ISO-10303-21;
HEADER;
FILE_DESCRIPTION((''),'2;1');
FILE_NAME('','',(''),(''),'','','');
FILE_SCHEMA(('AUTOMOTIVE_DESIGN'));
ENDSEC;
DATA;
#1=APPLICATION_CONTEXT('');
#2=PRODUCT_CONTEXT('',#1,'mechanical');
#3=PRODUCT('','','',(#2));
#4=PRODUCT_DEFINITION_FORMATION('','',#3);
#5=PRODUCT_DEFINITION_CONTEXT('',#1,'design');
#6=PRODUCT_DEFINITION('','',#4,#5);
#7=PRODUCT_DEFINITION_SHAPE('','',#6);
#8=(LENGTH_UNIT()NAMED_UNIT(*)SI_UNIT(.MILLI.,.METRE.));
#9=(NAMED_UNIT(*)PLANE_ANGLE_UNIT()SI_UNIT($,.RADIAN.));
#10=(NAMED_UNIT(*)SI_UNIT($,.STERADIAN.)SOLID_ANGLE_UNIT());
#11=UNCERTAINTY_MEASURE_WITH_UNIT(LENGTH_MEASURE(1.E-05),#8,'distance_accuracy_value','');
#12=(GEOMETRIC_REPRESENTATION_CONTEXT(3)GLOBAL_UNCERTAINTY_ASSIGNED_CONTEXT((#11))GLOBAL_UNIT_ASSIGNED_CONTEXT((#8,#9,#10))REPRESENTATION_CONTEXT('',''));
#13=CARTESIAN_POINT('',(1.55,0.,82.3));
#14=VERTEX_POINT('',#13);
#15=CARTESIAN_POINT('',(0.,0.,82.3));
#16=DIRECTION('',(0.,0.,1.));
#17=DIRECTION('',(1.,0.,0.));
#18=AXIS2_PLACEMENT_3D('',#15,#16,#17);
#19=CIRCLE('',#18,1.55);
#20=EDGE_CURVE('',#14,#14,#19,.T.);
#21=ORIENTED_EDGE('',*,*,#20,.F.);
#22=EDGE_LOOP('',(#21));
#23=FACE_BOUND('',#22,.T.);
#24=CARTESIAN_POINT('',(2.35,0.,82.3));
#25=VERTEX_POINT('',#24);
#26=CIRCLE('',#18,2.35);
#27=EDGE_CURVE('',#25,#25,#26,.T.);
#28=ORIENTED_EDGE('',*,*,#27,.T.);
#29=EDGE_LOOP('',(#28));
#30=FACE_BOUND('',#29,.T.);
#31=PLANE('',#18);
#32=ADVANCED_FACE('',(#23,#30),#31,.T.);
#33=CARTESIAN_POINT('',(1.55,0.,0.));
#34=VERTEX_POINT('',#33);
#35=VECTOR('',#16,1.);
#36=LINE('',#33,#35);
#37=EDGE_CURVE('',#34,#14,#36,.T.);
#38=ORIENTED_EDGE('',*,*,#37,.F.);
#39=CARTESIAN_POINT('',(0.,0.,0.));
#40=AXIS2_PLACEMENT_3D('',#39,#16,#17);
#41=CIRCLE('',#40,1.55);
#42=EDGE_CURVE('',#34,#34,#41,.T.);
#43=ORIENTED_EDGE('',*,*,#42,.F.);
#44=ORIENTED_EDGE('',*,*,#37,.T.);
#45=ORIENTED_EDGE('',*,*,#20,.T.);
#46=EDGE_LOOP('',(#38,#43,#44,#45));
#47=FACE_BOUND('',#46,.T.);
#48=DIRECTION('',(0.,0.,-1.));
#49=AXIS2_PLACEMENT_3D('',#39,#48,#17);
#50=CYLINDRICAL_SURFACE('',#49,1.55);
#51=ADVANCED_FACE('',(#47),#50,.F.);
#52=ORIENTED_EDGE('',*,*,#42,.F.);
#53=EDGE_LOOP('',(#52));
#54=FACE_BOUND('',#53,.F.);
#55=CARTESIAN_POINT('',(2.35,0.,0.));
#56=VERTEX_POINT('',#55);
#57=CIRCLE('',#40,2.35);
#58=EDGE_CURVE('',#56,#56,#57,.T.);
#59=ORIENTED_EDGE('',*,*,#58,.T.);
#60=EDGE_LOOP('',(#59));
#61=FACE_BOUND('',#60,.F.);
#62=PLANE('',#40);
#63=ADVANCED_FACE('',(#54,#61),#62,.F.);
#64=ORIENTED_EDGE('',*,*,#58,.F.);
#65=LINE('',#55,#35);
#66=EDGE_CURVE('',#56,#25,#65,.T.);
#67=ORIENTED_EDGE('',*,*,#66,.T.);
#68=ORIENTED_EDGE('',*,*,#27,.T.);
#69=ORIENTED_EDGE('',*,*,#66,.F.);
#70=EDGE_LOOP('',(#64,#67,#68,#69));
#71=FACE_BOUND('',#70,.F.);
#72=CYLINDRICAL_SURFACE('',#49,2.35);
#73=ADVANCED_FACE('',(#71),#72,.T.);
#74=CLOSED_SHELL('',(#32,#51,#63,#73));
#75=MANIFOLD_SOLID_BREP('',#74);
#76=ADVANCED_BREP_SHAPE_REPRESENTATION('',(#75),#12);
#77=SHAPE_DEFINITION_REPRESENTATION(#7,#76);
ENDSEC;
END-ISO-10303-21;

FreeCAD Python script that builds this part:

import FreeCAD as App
import Part
import Sketcher
from FreeCAD import Vector

doc = App.newDocument("Part")
body = doc.addObject("PartDesign::Body", "Body")

# Sketch on XY plane
sketch1 = body.newObject("Sketcher::SketchObject", "Sketch")
sketch1.AttachmentSupport = (doc.getObject("XY_Plane"), [""])
sketch1.MapMode = "FlatFace"
sketch1.addGeometry([
    Part.Circle(Vector(0, 0, 0), Vector(0, 0, 1), 2.4),
    Part.Circle(Vector(0, 0, 0), Vector(0, 0, 1), 1.6),
], False)
sketch1.addConstraint([
    Sketcher.Constraint("Coincident", 0, 3, -1, 1),
    Sketcher.Constraint("Coincident", 1, 3, -1, 1),
    Sketcher.Constraint("Diameter", 1, 3.1),
    Sketcher.Constraint("Diameter", 0, 4.7),
])
pad1 = body.newObject("PartDesign::Pad", "Pad")
pad1.Profile = sketch1
pad1.Length = 82.3

doc.recompute()
